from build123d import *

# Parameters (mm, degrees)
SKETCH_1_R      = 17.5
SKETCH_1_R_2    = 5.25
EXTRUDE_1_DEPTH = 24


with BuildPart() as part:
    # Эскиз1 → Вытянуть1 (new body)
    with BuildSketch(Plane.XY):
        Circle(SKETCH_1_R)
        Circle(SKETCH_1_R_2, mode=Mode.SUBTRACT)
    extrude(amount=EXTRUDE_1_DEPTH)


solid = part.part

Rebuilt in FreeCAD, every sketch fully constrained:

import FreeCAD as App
import Part
import Sketcher

V = App.Vector

doc = App.newDocument("Part")
body = doc.addObject("PartDesign::Body", "Body")

sketch1 = doc.addObject("Sketcher::SketchObject", "Sketch")
body.addObject(sketch1)
sketch1.AttachmentSupport = (doc.XY_Plane, [""])
sketch1.MapMode = "FlatFace"
sketch1.addGeometry([
    Part.Circle(V(0, 0, 0), V(0, 0, 1), 18),
    Part.Circle(V(0, 0, 0), V(0, 0, 1), 5),
], False)
sketch1.addConstraint([
    Sketcher.Constraint("Coincident", 0, 3, -1, 1),
    Sketcher.Constraint("Coincident", 1, 3, -1, 1),
    Sketcher.Constraint("Diameter", 0, 35.0),
    Sketcher.Constraint("Diameter", 1, 10.5),
])
pad1 = doc.addObject("PartDesign::Pad", "Pad")
body.addObject(pad1)
pad1.Profile = sketch1
pad1.Length = 24

doc.recompute()
